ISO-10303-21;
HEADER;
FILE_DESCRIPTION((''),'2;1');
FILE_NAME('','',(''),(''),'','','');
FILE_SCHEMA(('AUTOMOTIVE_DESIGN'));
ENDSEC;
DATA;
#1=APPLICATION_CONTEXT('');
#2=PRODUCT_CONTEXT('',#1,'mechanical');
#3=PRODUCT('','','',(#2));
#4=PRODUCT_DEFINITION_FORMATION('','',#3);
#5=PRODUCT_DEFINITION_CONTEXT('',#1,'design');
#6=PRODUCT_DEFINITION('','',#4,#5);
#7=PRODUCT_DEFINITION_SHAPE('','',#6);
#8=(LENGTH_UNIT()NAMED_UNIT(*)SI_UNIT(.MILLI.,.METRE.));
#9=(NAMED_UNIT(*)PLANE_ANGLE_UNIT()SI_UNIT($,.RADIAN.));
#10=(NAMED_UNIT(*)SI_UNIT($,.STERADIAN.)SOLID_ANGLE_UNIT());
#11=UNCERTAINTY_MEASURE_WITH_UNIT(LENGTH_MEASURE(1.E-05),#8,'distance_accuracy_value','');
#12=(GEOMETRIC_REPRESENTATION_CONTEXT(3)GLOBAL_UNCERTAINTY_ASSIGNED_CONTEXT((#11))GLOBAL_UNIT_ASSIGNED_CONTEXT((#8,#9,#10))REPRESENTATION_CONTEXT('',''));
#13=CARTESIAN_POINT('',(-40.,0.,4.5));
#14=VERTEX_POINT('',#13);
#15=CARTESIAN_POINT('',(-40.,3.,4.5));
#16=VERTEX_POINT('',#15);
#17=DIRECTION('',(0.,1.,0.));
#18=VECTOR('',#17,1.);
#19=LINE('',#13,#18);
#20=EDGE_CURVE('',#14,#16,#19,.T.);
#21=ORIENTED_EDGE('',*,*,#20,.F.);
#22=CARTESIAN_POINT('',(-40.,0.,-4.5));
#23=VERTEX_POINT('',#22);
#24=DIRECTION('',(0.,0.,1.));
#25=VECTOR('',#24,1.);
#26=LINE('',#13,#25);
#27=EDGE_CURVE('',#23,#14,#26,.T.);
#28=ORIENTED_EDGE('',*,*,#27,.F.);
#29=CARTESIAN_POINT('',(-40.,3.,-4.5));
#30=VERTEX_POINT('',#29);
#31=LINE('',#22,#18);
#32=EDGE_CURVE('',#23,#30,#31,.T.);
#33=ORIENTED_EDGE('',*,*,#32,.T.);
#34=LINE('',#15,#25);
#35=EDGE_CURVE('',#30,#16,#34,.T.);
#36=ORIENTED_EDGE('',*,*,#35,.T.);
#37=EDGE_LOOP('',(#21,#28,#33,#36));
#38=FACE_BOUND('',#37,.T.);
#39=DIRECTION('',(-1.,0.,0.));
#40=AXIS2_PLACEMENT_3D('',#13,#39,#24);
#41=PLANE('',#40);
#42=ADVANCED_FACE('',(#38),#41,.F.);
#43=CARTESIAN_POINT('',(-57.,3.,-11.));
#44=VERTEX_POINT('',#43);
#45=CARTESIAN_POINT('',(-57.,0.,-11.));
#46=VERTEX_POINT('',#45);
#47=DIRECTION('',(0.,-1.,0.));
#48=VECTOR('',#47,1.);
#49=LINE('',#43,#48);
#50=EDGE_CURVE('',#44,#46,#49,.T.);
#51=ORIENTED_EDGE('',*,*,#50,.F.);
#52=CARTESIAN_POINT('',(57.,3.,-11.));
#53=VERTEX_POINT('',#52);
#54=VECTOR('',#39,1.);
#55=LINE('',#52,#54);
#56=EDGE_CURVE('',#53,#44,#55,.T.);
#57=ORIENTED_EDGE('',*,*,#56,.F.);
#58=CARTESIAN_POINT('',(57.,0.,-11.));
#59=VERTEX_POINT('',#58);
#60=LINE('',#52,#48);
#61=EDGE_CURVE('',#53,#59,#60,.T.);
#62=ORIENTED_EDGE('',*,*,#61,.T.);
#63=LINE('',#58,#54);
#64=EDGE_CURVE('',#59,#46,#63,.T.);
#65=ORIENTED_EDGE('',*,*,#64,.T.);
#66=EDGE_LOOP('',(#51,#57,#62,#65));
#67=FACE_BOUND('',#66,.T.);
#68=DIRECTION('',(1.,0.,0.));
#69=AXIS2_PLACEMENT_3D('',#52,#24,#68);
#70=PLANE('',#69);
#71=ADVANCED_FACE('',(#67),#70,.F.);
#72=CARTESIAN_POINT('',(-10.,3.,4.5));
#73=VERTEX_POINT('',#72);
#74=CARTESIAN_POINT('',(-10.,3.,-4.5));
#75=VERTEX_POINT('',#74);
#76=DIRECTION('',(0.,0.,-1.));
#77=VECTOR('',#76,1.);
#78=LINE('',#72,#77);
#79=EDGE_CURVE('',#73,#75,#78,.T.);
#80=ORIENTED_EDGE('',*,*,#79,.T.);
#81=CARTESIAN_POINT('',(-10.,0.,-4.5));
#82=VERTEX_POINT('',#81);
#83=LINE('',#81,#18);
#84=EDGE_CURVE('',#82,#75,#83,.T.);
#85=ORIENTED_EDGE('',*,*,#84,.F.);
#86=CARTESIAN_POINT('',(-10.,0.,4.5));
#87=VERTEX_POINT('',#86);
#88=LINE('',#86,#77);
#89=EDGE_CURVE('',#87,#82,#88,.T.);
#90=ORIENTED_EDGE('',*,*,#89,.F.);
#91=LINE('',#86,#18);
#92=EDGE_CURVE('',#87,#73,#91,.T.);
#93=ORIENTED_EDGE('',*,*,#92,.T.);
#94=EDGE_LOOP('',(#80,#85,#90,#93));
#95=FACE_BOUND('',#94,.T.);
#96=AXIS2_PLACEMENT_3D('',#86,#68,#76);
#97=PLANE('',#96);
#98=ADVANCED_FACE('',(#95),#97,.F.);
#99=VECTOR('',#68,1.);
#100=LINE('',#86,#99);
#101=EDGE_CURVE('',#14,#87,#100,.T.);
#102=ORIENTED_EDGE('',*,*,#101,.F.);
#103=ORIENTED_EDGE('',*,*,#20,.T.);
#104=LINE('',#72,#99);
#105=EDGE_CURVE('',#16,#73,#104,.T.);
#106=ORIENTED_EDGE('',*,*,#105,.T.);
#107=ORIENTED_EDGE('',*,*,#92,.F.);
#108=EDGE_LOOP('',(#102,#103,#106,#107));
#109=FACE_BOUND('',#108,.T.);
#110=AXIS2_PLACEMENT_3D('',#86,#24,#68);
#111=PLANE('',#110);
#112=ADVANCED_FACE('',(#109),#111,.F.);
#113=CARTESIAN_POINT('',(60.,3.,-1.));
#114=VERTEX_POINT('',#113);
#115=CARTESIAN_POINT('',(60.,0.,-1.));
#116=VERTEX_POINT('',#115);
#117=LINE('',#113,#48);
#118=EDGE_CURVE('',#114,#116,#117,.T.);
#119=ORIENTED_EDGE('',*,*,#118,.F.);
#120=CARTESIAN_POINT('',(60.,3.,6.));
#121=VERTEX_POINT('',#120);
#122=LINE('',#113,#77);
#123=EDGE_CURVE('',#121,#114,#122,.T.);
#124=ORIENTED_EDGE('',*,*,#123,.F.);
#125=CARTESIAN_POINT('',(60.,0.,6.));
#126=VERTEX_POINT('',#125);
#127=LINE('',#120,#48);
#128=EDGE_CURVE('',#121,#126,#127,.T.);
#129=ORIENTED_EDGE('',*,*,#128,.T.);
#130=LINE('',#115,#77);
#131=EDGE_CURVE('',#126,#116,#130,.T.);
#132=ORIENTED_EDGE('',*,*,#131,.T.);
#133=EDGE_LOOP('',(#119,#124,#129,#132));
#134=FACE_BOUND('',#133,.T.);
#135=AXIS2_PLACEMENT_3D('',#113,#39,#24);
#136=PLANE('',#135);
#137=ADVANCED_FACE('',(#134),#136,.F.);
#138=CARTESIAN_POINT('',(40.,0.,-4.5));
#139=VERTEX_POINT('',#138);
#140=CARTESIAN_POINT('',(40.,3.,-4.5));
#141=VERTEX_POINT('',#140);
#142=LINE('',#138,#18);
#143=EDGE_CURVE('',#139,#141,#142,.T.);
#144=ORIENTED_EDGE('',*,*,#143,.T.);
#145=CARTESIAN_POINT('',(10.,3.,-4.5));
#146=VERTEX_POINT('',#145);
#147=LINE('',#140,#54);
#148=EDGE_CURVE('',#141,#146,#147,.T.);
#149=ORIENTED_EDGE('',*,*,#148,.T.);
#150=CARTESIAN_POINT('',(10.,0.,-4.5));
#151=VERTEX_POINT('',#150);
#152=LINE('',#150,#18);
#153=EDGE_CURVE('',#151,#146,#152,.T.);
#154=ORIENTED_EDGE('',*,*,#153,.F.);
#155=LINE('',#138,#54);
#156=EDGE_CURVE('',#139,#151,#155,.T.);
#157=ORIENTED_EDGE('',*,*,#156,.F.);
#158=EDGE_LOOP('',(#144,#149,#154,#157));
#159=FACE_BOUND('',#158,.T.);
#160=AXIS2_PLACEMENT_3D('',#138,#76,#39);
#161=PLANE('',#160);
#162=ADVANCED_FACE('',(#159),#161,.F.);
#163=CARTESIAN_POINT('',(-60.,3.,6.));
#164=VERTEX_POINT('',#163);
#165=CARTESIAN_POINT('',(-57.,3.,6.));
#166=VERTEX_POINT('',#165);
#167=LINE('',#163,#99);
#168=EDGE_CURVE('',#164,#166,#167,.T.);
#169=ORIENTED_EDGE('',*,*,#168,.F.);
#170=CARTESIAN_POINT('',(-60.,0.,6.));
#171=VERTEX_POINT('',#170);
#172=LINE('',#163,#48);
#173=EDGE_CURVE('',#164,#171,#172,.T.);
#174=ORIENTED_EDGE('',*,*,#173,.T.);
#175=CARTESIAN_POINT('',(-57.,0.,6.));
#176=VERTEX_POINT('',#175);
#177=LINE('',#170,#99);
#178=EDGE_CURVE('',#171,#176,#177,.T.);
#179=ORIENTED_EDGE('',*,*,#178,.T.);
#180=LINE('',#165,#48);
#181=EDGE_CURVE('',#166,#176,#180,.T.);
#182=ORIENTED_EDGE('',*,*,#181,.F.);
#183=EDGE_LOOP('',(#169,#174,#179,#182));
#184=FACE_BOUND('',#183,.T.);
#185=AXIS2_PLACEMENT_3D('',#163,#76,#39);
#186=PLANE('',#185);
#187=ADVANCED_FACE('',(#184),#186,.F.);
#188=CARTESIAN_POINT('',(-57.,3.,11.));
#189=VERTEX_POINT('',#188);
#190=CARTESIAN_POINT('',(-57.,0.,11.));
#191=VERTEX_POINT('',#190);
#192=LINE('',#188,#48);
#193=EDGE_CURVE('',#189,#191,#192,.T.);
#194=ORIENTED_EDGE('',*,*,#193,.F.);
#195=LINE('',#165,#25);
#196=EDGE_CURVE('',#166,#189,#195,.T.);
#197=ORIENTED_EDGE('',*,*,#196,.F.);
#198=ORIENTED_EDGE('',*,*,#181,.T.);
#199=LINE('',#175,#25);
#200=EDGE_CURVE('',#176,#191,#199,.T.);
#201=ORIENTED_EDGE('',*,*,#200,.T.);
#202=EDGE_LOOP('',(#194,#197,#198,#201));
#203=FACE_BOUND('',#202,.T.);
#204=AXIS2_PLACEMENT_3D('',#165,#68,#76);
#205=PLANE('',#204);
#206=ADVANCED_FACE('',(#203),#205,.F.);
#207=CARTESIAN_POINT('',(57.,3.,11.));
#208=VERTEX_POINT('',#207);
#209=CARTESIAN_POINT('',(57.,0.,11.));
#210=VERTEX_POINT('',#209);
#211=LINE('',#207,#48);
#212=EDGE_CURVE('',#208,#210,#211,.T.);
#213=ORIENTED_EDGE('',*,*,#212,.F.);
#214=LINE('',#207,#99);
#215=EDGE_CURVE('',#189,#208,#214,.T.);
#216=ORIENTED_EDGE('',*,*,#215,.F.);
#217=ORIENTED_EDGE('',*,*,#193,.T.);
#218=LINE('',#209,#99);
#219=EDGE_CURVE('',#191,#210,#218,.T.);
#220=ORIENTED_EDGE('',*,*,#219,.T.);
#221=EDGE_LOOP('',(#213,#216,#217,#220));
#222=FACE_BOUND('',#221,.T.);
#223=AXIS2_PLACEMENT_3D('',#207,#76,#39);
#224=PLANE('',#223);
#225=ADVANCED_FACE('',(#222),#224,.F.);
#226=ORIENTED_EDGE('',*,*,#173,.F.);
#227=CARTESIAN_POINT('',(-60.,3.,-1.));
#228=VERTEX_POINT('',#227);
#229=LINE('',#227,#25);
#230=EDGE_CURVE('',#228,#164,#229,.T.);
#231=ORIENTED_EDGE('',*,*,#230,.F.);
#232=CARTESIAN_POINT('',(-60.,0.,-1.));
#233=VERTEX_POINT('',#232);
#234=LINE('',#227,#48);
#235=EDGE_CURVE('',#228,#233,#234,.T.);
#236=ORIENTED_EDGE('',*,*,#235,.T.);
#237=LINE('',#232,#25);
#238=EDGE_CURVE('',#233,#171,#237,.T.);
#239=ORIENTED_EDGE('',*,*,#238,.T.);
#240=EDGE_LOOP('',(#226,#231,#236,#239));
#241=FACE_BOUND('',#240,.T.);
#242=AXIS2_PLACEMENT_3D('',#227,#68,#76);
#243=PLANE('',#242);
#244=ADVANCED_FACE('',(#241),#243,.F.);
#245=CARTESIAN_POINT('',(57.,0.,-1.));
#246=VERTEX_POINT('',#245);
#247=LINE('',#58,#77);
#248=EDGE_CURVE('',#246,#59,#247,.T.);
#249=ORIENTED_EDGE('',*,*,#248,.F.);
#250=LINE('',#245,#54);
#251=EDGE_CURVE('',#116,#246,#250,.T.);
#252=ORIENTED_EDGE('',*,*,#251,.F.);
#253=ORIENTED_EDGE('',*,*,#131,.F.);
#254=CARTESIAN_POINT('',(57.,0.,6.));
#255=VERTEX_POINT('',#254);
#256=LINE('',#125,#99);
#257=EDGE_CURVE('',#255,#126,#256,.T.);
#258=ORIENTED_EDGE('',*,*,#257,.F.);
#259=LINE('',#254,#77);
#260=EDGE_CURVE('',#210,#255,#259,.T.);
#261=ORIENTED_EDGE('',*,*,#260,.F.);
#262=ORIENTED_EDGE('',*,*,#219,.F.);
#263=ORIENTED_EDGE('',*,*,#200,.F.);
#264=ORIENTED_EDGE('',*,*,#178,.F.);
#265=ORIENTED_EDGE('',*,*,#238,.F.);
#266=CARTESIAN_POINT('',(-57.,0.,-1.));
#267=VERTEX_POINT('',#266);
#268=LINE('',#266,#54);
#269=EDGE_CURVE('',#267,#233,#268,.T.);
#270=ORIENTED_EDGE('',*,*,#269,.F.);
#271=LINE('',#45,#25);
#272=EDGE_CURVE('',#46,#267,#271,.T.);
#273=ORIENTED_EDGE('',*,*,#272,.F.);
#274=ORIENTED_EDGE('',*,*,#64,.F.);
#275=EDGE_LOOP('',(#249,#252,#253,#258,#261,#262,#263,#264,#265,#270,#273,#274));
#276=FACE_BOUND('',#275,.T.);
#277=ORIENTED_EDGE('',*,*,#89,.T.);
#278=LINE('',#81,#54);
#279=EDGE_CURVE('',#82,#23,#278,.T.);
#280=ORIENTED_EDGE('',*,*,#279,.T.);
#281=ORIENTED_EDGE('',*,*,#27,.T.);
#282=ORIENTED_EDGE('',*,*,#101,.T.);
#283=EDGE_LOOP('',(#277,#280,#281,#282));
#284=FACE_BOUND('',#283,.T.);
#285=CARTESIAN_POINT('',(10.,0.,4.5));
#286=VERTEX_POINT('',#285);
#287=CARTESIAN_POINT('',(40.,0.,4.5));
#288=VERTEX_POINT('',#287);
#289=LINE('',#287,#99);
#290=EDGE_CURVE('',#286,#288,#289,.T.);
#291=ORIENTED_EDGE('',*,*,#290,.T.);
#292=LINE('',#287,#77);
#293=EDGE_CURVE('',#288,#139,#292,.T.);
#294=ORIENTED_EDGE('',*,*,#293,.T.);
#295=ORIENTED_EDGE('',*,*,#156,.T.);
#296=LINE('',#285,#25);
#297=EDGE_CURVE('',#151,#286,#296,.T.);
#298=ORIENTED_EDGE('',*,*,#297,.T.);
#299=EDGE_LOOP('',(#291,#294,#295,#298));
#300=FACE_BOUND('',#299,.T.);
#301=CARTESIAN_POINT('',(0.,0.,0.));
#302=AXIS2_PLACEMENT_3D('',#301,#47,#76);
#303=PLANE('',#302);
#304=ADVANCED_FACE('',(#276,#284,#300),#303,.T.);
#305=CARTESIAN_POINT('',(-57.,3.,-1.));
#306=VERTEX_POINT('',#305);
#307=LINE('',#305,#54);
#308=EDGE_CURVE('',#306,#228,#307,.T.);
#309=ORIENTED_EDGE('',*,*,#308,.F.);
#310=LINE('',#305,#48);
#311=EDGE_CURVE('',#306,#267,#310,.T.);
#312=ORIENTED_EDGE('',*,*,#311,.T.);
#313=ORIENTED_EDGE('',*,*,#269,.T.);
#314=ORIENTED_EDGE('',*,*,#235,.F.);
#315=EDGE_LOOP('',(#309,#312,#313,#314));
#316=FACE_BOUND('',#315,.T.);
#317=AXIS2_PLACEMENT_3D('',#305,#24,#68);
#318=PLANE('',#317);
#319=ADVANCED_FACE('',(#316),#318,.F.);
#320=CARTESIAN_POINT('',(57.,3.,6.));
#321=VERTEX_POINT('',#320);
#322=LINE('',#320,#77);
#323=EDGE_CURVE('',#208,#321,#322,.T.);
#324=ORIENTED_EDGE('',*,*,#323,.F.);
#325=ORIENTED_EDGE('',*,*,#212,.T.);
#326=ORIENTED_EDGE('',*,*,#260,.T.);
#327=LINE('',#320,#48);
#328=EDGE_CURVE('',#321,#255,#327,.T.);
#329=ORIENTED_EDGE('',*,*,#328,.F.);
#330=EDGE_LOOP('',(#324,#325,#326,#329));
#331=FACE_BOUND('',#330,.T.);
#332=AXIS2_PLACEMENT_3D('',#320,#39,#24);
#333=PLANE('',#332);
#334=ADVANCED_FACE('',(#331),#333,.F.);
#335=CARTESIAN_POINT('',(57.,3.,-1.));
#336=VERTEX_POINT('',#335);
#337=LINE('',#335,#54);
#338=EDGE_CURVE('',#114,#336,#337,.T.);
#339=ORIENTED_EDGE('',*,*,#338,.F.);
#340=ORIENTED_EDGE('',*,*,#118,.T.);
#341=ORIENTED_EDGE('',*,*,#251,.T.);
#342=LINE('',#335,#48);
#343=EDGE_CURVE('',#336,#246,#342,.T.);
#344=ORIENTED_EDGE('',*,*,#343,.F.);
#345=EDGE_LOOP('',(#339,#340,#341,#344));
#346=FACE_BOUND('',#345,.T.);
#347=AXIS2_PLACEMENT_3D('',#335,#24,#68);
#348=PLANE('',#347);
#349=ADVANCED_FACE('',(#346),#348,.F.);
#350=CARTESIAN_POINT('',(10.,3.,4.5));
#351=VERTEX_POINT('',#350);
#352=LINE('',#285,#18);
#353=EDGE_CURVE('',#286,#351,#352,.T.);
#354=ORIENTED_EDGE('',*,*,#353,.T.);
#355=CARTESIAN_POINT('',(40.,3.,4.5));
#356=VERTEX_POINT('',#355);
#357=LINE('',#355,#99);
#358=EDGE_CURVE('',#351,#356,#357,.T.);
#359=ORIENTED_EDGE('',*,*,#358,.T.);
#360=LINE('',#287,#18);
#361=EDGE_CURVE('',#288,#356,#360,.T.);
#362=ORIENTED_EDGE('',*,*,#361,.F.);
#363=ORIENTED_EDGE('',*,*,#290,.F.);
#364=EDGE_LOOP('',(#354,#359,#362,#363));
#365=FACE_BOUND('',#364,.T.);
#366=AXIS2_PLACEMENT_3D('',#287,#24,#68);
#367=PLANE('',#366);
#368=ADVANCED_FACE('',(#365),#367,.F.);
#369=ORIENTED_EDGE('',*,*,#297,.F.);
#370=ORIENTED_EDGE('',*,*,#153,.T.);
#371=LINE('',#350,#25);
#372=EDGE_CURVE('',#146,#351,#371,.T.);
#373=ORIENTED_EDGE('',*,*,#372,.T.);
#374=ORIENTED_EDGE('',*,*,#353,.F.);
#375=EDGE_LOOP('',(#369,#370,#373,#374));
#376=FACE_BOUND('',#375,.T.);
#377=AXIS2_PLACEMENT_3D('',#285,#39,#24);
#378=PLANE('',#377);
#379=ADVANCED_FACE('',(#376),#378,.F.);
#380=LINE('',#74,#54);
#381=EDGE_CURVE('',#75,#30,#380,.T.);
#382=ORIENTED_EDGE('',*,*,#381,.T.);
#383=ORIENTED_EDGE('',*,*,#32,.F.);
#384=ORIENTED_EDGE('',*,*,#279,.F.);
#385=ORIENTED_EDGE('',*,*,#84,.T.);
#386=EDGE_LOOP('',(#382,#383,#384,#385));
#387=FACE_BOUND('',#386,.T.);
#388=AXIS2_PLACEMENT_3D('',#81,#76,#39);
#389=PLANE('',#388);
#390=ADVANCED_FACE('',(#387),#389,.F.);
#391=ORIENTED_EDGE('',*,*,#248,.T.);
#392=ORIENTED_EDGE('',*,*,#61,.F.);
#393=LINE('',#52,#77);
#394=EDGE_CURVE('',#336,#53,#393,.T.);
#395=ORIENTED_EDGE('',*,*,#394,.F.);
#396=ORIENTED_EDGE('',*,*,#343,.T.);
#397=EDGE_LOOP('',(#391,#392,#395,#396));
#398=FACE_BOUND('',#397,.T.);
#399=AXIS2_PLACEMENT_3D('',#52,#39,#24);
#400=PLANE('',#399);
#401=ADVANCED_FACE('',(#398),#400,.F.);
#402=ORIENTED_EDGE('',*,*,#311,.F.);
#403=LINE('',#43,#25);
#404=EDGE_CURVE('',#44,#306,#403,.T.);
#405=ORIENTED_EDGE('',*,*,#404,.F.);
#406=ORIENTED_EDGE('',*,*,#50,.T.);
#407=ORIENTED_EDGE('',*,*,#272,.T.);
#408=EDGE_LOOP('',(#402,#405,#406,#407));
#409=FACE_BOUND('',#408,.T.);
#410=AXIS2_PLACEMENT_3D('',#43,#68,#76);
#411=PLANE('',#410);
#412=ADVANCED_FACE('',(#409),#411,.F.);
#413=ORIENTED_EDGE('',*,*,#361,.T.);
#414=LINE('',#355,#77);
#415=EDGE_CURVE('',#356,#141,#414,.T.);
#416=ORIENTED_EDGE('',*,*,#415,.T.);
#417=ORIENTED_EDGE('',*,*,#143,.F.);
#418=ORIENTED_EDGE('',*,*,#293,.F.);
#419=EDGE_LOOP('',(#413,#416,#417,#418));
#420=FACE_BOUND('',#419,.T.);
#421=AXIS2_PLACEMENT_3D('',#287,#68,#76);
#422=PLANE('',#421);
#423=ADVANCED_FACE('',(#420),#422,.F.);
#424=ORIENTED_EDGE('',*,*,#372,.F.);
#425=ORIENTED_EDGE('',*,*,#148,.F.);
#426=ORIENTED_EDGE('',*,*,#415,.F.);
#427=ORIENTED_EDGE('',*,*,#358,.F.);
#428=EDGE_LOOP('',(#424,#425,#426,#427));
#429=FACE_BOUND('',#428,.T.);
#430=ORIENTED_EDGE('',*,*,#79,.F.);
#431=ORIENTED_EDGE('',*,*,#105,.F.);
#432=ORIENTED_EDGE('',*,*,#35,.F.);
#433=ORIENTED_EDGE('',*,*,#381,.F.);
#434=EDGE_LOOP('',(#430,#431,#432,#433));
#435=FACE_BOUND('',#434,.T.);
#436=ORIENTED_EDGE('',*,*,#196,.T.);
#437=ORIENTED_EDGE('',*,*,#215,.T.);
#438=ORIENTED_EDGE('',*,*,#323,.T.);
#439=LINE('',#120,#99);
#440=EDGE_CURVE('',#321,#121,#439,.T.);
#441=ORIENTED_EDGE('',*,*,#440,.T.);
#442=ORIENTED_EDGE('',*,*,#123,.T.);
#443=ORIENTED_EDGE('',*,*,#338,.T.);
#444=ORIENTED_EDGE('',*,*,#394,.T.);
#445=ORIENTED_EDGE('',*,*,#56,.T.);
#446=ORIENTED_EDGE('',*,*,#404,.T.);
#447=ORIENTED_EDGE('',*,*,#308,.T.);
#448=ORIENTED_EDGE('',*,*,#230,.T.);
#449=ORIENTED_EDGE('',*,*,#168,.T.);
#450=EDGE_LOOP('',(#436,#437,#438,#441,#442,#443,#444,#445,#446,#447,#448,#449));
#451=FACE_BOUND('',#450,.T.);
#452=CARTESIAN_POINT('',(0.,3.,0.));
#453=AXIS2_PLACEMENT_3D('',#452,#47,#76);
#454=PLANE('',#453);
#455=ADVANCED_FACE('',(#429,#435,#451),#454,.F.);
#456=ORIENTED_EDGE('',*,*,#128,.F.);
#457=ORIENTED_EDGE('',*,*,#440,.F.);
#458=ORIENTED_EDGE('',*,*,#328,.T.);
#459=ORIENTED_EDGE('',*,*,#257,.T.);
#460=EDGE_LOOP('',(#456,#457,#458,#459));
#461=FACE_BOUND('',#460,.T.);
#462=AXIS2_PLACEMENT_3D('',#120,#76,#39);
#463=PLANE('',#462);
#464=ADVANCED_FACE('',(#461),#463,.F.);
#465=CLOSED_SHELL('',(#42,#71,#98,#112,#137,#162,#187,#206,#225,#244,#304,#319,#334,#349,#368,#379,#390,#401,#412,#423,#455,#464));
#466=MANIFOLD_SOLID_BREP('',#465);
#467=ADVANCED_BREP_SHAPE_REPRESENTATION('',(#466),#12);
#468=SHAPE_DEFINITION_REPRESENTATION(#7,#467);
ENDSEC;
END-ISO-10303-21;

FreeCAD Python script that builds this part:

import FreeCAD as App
import Part
import Sketcher

V = App.Vector
Q = App.Units.Quantity


def add_polygon(sketch, points):
    """Adds a closed chain of lines whose ends are joined by coincident constraints."""
    first, n = sketch.GeometryCount, len(points)
    for a, b in zip(points, points[1:] + points[:1]):
        sketch.addGeometry(Part.LineSegment(App.Vector(*a, 0), App.Vector(*b, 0)), False)
    for i in range(n):
        sketch.addConstraint(Sketcher.Constraint("Coincident", first + i, 2, first + (i + 1) % n, 1))

doc = App.newDocument("Part")
params = doc.addObject("Spreadsheet::Sheet", "Params")
for row, (alias, value) in enumerate([
    ("sketch1_width", "3 mm"),
    ("sketch1_width2", "114 mm"),
    ("sketch1_height", "7 mm"),
    ("sketch1_height2", "5 mm"),
    ("sketch1_height3", "10 mm"),
    ("pad1_length", "3 mm"),
    ("sketch2_width", "30 mm"),
    ("sketch2_height", "9 mm"),
], start=1):
    params.set(f"A{row}", alias)
    params.set(f"B{row}", "=" + value)
    params.setAlias(f"B{row}", alias)

body = doc.addObject("PartDesign::Body", "Body")

# Sketch on XZ plane
sketch1 = doc.addObject("Sketcher::SketchObject", "Sketch")
body.addObject(sketch1)
sketch1.AttachmentSupport = (doc.XZ_Plane, [""])
sketch1.MapMode = "FlatFace"
add_polygon(sketch1, [(-57, -1), (-60, -1), (-60, 6), (-57, 6), (-57, 11), (57, 11), (57, 6), (60, 6), (60, -1), (57, -1), (57, -11), (-57, -11)])  # lines 0-11
sketch1.addConstraint([
    Sketcher.Constraint("Horizontal", 0),
    Sketcher.Constraint("Vertical", 1),
    Sketcher.Constraint("Horizontal", 2),
    Sketcher.Constraint("Vertical", 3),
    Sketcher.Constraint("Horizontal", 4),
    Sketcher.Constraint("Vertical", 5),
    Sketcher.Constraint("Horizontal", 6),
    Sketcher.Constraint("Vertical", 7),
    Sketcher.Constraint("Horizontal", 8),
    Sketcher.Constraint("Vertical", 9),
    Sketcher.Constraint("Horizontal", 10),
    Sketcher.Constraint("Vertical", 11),
    Sketcher.Constraint("Symmetric", 3, 2, 9, 2, -1, 1),
    Sketcher.Constraint("Symmetric", 2, 2, 5, 2, -2),
    Sketcher.Constraint("Symmetric", 0, 2, 7, 2, -2),
    Sketcher.Constraint("Vertical", 3, 2, 10, 2),
    Sketcher.Constraint("DistanceX", 0, 2, 0, 1, Q("3 mm")),
    Sketcher.Constraint("DistanceX", 4, 1, 4, 2, Q("114 mm")),
    Sketcher.Constraint("DistanceY", 1, 1, 1, 2, Q("7 mm")),
    Sketcher.Constraint("DistanceY", 3, 1, 3, 2, Q("5 mm")),
    Sketcher.Constraint("DistanceY", 9, 2, 9, 1, Q("10 mm")),
])
sketch1.setExpression("Constraints[28]", "Params.sketch1_width")
sketch1.setExpression("Constraints[29]", "Params.sketch1_width2")
sketch1.setExpression("Constraints[30]", "Params.sketch1_height")
sketch1.setExpression("Constraints[31]", "Params.sketch1_height2")
sketch1.setExpression("Constraints[32]", "Params.sketch1_height3")
pad1 = doc.addObject("PartDesign::Pad", "Pad")
body.addObject(pad1)
pad1.Profile = sketch1
pad1.setExpression("Length", "Params.pad1_length")
pad1.Reversed = True

# Sketch on XZ plane
sketch2 = doc.addObject("Sketcher::SketchObject", "Sketch001")
body.addObject(sketch2)
sketch2.AttachmentSupport = (doc.XZ_Plane, [""])
sketch2.MapMode = "FlatFace"
sketch2.AttachmentOffset = App.Placement(V(0, 0, -3), App.Rotation())
add_polygon(sketch2, [(-40, -4.5), (-40, 4.5), (-10, 4.5), (-10, -4.5)])  # lines 0-3
add_polygon(sketch2, [(10, -4.5), (10, 4.5), (40, 4.5), (40, -4.5)])  # lines 4-7
sketch2.addConstraint([
    Sketcher.Constraint("Vertical", 0),
    Sketcher.Constraint("Horizontal", 1),
    Sketcher.Constraint("Vertical", 2),
    Sketcher.Constraint("Horizontal", 3),
    Sketcher.Constraint("Vertical", 4),
    Sketcher.Constraint("Horizontal", 5),
    Sketcher.Constraint("Vertical", 6),
    Sketcher.Constraint("Horizontal", 7),
    Sketcher.Constraint("Symmetric", 2, 2, 4, 2, -1, 1),
    Sketcher.Constraint("Symmetric", 0, 2, 6, 2, -1, 1),
    Sketcher.Constraint("Horizontal", 1, 2, 4, 2),
    Sketcher.Constraint("DistanceX", 1, 1, 1, 2, Q("30 mm")),
    Sketcher.Constraint("DistanceY", 0, 1, 0, 2, Q("9 mm")),
    Sketcher.Constraint("DistanceX", 0, 2, -1, 1, Q("40 mm")),
])
sketch2.setExpression("Constraints[19]", "Params.sketch2_width")
sketch2.setExpression("Constraints[20]", "Params.sketch2_height")
pocket1 = doc.addObject("PartDesign::Pocket", "Pocket")
body.addObject(pocket1)
pocket1.Profile = sketch2
pocket1.Type = "ThroughAll"
pocket1.Reversed = True

doc.recompute()
